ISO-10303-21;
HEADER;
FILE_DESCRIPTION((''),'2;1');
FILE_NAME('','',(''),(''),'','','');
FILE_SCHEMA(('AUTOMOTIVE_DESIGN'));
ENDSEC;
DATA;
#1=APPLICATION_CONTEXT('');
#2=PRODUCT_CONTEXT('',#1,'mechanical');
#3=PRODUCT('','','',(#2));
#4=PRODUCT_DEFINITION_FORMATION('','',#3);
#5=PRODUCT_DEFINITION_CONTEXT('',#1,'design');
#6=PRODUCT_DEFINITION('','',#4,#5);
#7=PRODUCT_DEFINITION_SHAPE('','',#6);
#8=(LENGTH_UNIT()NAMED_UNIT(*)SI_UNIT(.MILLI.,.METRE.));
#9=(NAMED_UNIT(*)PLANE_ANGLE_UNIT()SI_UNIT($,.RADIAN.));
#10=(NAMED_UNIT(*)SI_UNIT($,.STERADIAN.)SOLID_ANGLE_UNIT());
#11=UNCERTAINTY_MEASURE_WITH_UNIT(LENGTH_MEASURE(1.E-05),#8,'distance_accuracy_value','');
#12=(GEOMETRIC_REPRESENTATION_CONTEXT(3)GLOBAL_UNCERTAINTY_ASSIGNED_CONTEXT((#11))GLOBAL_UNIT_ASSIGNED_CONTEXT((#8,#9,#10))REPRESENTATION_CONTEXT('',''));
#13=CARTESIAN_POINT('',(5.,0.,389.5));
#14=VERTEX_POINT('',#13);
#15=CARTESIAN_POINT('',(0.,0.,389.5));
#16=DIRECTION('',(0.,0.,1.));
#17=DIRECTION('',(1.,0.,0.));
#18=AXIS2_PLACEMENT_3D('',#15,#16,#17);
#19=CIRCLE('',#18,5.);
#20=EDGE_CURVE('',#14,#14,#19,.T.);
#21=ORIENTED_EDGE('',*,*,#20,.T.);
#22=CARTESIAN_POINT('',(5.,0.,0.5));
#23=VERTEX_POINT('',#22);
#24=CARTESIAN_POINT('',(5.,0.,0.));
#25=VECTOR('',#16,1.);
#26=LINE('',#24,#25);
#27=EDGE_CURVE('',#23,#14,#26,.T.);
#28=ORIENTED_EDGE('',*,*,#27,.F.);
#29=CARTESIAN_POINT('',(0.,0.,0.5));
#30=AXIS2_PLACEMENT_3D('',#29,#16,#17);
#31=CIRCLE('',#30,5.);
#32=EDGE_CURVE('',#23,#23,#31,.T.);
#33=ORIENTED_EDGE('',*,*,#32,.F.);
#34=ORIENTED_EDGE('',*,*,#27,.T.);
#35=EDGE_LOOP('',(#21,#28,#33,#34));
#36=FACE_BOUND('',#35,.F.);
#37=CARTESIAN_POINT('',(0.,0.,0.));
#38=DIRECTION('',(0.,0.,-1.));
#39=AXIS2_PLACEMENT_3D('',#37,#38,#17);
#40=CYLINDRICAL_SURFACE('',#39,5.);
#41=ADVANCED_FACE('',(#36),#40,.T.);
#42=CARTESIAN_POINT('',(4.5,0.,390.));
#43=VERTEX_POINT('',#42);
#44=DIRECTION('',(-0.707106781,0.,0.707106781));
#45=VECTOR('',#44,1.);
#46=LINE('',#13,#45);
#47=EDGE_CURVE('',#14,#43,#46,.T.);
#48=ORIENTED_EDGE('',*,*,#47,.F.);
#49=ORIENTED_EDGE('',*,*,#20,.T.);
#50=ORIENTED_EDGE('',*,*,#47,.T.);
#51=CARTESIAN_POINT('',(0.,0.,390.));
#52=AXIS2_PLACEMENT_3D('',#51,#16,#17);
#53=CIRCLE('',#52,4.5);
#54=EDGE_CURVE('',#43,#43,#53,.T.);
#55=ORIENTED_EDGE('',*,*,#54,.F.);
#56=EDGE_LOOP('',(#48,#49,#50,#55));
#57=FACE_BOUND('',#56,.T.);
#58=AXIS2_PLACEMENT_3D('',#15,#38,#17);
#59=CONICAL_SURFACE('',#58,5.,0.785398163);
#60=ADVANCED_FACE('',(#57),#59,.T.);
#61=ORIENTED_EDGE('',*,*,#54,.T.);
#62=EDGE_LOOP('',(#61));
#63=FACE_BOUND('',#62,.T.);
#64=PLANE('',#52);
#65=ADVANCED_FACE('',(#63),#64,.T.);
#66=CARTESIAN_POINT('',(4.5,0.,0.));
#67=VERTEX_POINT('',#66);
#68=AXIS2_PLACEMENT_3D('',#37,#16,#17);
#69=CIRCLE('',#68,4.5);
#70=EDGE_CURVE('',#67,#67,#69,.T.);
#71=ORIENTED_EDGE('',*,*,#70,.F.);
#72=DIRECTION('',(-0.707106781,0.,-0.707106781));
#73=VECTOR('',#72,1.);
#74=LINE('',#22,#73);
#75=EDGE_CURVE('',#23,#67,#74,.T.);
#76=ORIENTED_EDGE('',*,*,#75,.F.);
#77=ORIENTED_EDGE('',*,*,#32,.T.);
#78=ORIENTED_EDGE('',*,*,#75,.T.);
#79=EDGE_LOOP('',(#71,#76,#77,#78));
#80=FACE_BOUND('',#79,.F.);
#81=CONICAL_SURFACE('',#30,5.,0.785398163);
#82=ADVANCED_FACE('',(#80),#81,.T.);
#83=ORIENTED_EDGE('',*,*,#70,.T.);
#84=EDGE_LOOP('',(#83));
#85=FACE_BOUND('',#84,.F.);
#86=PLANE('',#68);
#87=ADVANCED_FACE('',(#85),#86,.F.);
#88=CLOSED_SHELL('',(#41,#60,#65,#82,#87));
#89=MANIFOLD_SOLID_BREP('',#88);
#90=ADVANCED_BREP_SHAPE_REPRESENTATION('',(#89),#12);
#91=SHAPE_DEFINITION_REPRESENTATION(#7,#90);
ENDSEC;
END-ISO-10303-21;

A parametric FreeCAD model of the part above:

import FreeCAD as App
import Part
import Sketcher
from FreeCAD import Vector
Q = App.Units.Quantity


def edges_at(feature, points):
    """Names of the edges that pass closest to the given points."""
    edges = feature.Shape.Edges
    near = lambda p: min(range(len(edges)), key=lambda i: edges[i].distToShape(Part.Vertex(*p))[0])
    return sorted({f"Edge{near(p) + 1}" for p in points})

doc = App.newDocument("Part")
body = doc.addObject("PartDesign::Body", "Body")

sketch1 = body.newObject("Sketcher::SketchObject", "Sketch")
sketch1.AttachmentSupport = (doc.getObject("XY_Plane"), [""])
sketch1.MapMode = "FlatFace"
sketch1.addGeometry(Part.Circle(Vector(0, 0, 0), Vector(0, 0, 1), 5), False)
sketch1.addConstraint([
    Sketcher.Constraint("Coincident", 0, 3, -1, 1),
    Sketcher.Constraint("Diameter", 0, Q("10 mm")),
])
pad1 = body.newObject("PartDesign::Pad", "Pad")
pad1.Profile = sketch1
pad1.Length = 390
doc.recompute()

chamfer = body.newObject("PartDesign::Chamfer", "Chamfer")
chamfer.Base = (pad1, edges_at(pad1, [(-5, 0, 390), (-5, 0, 0)]))
chamfer.Size = 0.5

doc.recompute()
